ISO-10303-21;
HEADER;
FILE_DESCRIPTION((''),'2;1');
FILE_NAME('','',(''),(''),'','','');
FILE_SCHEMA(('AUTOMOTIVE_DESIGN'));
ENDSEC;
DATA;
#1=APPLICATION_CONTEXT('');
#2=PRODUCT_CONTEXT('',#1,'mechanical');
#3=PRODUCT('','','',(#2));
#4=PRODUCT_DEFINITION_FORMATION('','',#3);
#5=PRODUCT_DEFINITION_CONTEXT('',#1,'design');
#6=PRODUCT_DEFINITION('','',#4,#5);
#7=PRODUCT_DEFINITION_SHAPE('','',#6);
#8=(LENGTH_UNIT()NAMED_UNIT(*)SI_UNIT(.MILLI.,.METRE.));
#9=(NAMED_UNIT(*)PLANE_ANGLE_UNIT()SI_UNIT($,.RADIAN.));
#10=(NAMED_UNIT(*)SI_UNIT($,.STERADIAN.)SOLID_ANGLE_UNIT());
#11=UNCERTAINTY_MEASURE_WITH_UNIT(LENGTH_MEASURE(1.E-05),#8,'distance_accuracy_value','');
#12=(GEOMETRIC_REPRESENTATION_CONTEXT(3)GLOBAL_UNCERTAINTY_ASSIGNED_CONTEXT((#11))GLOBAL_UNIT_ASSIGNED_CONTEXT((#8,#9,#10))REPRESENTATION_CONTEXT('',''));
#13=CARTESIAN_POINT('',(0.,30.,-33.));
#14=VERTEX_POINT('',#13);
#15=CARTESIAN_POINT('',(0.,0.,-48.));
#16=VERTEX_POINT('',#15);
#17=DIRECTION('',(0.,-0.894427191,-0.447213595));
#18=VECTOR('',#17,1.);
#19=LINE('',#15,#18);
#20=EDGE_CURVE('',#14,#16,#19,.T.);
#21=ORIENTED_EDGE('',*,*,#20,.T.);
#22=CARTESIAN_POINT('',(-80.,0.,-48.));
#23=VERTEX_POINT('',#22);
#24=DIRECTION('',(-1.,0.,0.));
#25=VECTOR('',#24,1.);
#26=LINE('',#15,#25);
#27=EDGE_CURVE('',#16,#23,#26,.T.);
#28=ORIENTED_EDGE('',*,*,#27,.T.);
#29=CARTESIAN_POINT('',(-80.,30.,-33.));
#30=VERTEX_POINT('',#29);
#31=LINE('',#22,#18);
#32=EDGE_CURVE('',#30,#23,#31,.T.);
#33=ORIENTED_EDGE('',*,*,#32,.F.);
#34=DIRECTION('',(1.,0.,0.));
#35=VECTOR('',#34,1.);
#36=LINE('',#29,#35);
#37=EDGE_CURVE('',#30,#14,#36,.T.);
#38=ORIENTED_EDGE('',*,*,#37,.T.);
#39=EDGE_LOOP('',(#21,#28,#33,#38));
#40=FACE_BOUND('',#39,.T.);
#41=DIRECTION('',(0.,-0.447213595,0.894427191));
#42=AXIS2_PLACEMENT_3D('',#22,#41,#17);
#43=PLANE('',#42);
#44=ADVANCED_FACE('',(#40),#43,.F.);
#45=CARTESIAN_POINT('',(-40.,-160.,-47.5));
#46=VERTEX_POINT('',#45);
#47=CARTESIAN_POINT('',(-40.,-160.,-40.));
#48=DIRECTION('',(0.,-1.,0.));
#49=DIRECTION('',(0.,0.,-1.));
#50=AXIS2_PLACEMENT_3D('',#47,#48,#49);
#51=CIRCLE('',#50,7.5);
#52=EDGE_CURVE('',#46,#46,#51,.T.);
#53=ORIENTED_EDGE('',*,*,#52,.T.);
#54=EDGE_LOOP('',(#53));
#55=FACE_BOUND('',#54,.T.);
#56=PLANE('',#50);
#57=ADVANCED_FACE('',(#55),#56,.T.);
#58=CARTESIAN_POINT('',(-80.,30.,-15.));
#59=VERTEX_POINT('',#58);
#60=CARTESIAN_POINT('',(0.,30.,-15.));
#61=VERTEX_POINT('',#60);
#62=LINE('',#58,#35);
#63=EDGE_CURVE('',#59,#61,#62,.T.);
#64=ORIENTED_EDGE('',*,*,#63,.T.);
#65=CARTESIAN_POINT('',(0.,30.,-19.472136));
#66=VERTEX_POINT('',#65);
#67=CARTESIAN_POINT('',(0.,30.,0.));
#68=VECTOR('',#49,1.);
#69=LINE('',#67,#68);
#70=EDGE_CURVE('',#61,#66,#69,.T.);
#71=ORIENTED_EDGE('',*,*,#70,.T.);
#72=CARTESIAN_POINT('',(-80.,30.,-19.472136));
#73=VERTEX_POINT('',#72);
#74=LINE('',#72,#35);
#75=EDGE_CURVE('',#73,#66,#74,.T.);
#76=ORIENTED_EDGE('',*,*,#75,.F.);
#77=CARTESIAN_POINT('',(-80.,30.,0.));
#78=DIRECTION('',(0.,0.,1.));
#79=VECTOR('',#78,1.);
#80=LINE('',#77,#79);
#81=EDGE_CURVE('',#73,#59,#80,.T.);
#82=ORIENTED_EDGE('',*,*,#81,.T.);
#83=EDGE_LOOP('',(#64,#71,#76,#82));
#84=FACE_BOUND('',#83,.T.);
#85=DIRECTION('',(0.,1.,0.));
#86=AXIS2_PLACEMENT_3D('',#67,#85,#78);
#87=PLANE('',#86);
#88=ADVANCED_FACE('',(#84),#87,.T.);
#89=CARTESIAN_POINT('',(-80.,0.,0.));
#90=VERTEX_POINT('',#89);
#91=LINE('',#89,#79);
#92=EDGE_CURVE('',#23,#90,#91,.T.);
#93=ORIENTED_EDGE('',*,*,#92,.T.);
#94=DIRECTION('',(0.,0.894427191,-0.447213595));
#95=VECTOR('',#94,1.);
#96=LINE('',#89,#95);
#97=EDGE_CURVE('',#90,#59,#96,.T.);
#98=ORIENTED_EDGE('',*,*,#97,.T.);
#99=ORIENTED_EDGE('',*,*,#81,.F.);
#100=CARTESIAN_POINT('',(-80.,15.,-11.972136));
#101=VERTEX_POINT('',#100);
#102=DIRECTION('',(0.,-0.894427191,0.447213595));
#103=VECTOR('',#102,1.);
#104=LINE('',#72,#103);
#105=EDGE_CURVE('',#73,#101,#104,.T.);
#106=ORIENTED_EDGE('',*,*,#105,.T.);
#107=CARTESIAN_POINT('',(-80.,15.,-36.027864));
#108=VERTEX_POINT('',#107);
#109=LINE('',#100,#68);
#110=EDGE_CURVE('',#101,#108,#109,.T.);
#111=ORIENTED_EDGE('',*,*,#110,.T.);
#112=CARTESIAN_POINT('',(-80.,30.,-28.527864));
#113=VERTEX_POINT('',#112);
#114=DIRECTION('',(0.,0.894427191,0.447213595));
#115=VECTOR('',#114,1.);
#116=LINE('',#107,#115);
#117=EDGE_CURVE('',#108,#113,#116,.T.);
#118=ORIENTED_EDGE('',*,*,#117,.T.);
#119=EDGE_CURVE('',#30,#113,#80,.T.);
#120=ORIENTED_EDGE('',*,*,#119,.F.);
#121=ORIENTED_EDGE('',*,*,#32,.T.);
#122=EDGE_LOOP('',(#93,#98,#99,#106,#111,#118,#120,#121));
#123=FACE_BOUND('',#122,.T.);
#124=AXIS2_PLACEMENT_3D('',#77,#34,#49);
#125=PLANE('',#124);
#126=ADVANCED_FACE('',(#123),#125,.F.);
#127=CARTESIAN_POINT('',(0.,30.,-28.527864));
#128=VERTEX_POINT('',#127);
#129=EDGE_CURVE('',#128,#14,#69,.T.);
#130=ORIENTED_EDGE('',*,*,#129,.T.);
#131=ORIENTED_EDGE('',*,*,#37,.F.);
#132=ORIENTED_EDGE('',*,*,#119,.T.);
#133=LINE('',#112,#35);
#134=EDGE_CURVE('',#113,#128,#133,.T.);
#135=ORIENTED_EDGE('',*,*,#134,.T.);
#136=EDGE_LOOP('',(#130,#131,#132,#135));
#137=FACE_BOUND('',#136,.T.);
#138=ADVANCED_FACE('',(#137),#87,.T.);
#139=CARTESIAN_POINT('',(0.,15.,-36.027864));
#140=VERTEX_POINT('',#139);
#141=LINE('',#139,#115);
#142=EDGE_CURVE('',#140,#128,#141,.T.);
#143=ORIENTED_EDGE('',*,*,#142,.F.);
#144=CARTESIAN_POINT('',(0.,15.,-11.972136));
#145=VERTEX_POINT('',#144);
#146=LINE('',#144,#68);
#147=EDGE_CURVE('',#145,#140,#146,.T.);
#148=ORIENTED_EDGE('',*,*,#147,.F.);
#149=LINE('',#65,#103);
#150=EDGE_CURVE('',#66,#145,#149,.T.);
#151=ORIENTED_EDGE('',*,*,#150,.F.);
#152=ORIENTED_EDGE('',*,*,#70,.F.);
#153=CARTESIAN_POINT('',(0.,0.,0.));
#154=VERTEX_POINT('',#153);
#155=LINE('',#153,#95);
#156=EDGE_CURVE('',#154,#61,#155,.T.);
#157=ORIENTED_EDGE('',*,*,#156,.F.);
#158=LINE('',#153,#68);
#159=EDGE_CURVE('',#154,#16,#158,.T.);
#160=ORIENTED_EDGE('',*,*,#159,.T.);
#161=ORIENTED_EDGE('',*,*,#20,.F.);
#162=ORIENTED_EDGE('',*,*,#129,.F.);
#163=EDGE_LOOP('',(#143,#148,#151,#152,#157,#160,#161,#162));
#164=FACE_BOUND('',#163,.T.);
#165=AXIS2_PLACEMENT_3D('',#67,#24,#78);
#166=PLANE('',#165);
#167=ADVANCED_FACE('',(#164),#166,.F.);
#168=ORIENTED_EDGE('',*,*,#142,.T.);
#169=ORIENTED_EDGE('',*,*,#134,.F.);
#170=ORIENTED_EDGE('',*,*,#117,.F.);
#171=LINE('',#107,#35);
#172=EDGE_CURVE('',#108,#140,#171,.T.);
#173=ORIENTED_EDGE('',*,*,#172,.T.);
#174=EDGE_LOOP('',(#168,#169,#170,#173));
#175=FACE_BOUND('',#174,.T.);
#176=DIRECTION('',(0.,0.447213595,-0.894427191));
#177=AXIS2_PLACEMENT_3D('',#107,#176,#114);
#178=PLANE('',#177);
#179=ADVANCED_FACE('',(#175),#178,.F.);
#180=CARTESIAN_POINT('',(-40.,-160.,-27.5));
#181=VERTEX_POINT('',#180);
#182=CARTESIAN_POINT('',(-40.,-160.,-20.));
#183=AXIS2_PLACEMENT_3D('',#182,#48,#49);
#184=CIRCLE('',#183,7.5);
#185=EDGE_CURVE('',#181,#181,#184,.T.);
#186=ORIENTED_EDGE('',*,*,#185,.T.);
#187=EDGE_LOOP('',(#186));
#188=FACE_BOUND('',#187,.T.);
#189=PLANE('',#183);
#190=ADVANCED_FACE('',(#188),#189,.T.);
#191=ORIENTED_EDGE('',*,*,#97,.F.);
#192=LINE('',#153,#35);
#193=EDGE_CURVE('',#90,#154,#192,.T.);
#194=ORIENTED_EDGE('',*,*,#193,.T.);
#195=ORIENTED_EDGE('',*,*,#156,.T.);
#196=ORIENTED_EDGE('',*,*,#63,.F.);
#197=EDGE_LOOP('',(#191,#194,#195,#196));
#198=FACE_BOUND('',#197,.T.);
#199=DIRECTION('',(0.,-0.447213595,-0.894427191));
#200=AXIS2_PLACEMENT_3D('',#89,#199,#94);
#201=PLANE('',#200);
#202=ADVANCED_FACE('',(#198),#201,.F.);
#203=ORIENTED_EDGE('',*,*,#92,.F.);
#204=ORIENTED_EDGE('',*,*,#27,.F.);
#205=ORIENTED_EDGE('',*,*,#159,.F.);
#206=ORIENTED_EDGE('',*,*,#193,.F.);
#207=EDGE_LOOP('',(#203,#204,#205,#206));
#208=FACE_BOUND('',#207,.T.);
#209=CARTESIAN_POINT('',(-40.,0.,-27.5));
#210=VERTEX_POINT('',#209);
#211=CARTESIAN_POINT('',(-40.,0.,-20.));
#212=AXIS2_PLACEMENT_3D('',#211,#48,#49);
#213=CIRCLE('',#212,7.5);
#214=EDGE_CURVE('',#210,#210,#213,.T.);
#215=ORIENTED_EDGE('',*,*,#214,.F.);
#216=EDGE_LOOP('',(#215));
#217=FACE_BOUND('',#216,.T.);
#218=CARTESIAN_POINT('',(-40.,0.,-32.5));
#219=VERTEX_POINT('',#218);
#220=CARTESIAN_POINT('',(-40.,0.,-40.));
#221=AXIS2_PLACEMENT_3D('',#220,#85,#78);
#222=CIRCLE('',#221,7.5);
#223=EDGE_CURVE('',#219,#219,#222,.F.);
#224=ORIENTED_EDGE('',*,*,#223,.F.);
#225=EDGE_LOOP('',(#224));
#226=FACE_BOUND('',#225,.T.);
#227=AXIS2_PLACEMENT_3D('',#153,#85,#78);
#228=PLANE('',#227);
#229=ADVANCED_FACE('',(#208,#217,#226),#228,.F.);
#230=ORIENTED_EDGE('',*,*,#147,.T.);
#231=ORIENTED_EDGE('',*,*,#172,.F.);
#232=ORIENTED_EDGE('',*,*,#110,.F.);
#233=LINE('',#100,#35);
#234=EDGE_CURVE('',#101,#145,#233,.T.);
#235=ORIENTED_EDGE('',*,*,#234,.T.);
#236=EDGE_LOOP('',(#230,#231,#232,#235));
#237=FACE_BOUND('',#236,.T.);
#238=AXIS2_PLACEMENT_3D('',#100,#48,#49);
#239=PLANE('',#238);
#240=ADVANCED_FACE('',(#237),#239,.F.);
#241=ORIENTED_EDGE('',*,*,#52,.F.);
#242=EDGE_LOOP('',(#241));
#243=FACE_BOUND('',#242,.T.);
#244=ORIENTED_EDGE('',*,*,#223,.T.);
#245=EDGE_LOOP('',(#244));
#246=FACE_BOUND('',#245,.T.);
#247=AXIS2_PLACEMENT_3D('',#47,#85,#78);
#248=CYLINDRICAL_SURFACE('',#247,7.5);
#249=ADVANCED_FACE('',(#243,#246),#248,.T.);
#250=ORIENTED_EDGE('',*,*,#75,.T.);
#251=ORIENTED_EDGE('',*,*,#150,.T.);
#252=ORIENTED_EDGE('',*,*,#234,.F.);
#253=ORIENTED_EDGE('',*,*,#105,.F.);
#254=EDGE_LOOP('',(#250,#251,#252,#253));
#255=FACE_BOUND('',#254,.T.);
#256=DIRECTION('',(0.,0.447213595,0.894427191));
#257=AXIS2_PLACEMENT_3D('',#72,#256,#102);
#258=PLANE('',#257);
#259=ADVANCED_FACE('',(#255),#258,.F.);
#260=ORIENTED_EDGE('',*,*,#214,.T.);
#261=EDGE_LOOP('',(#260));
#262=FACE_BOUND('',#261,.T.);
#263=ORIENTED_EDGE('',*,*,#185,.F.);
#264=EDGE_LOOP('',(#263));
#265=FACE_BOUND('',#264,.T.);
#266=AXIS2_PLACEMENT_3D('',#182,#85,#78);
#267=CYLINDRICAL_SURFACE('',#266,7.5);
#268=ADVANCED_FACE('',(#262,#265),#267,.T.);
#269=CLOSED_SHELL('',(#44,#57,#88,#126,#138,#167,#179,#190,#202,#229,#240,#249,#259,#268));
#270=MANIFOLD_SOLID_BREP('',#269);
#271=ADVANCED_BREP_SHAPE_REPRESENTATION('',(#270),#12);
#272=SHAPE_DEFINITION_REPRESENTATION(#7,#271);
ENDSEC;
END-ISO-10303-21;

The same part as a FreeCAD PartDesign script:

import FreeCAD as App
import Part
import Sketcher
Q = App.Units.Quantity


def add_polygon(sketch, points):
    """Adds a closed chain of lines whose ends are joined by coincident constraints."""
    first, n = sketch.GeometryCount, len(points)
    for a, b in zip(points, points[1:] + points[:1]):
        sketch.addGeometry(Part.LineSegment(App.Vector(*a, 0), App.Vector(*b, 0)), False)
    for i in range(n):
        sketch.addConstraint(Sketcher.Constraint("Coincident", first + i, 2, first + (i + 1) % n, 1))

doc = App.newDocument("Part")
params = doc.addObject("Spreadsheet::Sheet", "Params")
for row, (alias, value) in enumerate([
    ("sketch1_width", "80 mm"),
    ("sketch1_height", "48 mm"),
    ("pad1_length", "30 mm"),
    ("sketch2_width", "30 mm"),
    ("sketch2_height", "15 mm"),
    ("sketch4_diameter", "15 mm"),
    ("pad2_length", "160 mm"),
], start=1):
    params.set(f"A{row}", alias)
    params.set(f"B{row}", "=" + value)
    params.setAlias(f"B{row}", alias)

body = doc.addObject("PartDesign::Body", "Body")

# Sketch on XZ plane
sketch1 = doc.addObject("Sketcher::SketchObject", "Sketch")
body.addObject(sketch1)
sketch1.AttachmentSupport = (doc.XZ_Plane, [""])
sketch1.MapMode = "FlatFace"
add_polygon(sketch1, [(-80, -48), (-80, 0), (0, 0), (0, -48)])  # lines 0-3
sketch1.addConstraint([
    Sketcher.Constraint("Vertical", 0),
    Sketcher.Constraint("Horizontal", 1),
    Sketcher.Constraint("Vertical", 2),
    Sketcher.Constraint("Horizontal", 3),
    Sketcher.Constraint("Coincident", 1, 2, -1, 1),
    Sketcher.Constraint("DistanceX", 1, 1, 1, 2, Q("80 mm")),
    Sketcher.Constraint("DistanceY", 0, 1, 0, 2, Q("48 mm")),
])
sketch1.setExpression("Constraints[9]", "Params.sketch1_width")
sketch1.setExpression("Constraints[10]", "Params.sketch1_height")
pad1 = doc.addObject("PartDesign::Pad", "Pad")
body.addObject(pad1)
pad1.Profile = sketch1
pad1.setExpression("Length", "Params.pad1_length")
pad1.Reversed = True

# Sketch on YZ plane
sketch2 = doc.addObject("Sketcher::SketchObject", "Sketch001")
body.addObject(sketch2)
sketch2.AttachmentSupport = (doc.YZ_Plane, [""])
sketch2.MapMode = "FlatFace"
add_polygon(sketch2, [(0, 0), (30, -15), (30, 0)])  # lines 0-2
add_polygon(sketch2, [(30, -33), (0, -48), (30, -48)])  # lines 3-5
sketch2.addConstraint([
    Sketcher.Constraint("Vertical", 1),
    Sketcher.Constraint("Horizontal", 2),
    Sketcher.Constraint("Horizontal", 4),
    Sketcher.Constraint("Vertical", 5),
    Sketcher.Constraint("Coincident", 2, 2, -1, 1),
    Sketcher.Constraint("PointOnObject", 3, 2, -2),
    Sketcher.Constraint("Vertical", 1, 2, 4, 2),
    Sketcher.Constraint("Equal", 1, 5),
    Sketcher.Constraint("DistanceX", 2, 2, 2, 1, Q("30 mm")),
    Sketcher.Constraint("DistanceY", 1, 1, 1, 2, Q("15 mm")),
    Sketcher.Constraint("DistanceY", 3, 2, -1, 1, Q("48 mm")),
])
sketch2.setExpression("Constraints[14]", "Params.sketch2_width")
sketch2.setExpression("Constraints[15]", "Params.sketch2_height")
pocket1 = doc.addObject("PartDesign::Pocket", "Pocket")
body.addObject(pocket1)
pocket1.Profile = sketch2
pocket1.Type = "ThroughAll"

# Sketch on YZ plane
sketch3 = doc.addObject("Sketcher::SketchObject", "Sketch002")
body.addObject(sketch3)
sketch3.AttachmentSupport = (doc.YZ_Plane, [""])
sketch3.MapMode = "FlatFace"
add_polygon(sketch3, [(30, -19), (15, -12), (15, -36), (30, -29)])  # lines 0-3
sketch3.addConstraint([
    Sketcher.Constraint("Vertical", 1),
    Sketcher.Constraint("Vertical", 3),
    Sketcher.Constraint("Equal", 0, 2),
    Sketcher.Constraint("DistanceX", -1, 1, 0, 2, Q("15 mm")),
    Sketcher.Constraint("DistanceX", -1, 1, 2, 2, Q("30 mm")),
    Sketcher.Constraint("DistanceY", 1, 2, 2, 2, Q("7.5 mm")),
    Sketcher.Constraint("DistanceY", 1, 2, 1, 1, Q("24.055728 mm")),
    Sketcher.Constraint("DistanceY", 0, 2, -1, 1, Q("11.972136 mm")),
])
pocket2 = doc.addObject("PartDesign::Pocket", "Pocket001")
body.addObject(pocket2)
pocket2.Profile = sketch3
pocket2.Type = "ThroughAll"

# Sketch on XZ plane
sketch4 = doc.addObject("Sketcher::SketchObject", "Sketch003")
body.addObject(sketch4)
sketch4.AttachmentSupport = (doc.XZ_Plane, [""])
sketch4.MapMode = "FlatFace"
sketch4.addGeometry([
    Part.Circle(App.Vector(-40, -20, 0), App.Vector(0, 0, 1), 8),
    Part.Circle(App.Vector(-40, -40, 0), App.Vector(0, 0, 1), 8),
], False)
sketch4.addConstraint([
    Sketcher.Constraint("Equal", 0, 1),
    Sketcher.Constraint("Vertical", 0, 3, 1, 3),
    Sketcher.Constraint("Diameter", 0, Q("15 mm")),
    Sketcher.Constraint("DistanceX", 0, 3, -1, 1, Q("40 mm")),
    Sketcher.Constraint("DistanceY", 0, 3, -1, 1, Q("20 mm")),
    Sketcher.Constraint("DistanceY", 1, 3, -1, 1, Q("40 mm")),
])
sketch4.setExpression("Constraints[2]", "Params.sketch4_diameter")
pad2 = doc.addObject("PartDesign::Pad", "Pad001")
body.addObject(pad2)
pad2.Profile = sketch4
pad2.setExpression("Length", "Params.pad2_length")

doc.recompute()
